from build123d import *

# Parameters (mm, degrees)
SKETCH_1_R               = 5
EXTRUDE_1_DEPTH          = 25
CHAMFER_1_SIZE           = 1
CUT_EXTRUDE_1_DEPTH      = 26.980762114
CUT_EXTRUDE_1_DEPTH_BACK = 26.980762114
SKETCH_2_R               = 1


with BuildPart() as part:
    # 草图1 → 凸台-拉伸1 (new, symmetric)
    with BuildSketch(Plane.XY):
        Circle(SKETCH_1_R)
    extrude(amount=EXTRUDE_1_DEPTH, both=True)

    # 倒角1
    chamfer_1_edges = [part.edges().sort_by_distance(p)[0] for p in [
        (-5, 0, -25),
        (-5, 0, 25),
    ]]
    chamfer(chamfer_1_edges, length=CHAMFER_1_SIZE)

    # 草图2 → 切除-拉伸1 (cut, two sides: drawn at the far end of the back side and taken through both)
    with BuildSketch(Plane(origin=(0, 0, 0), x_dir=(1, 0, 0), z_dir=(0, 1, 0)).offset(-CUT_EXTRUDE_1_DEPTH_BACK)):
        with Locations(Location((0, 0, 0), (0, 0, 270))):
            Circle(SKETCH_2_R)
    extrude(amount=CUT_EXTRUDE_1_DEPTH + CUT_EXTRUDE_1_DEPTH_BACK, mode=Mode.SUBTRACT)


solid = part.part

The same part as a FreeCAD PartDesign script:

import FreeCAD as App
import Part
import Sketcher


def edges_at(feature, points):
    """Names of the edges that pass closest to the given points."""
    edges = feature.Shape.Edges
    near = lambda p: min(range(len(edges)), key=lambda i: edges[i].distToShape(Part.Vertex(*p))[0])
    return sorted({f"Edge{near(p) + 1}" for p in points})

doc = App.newDocument("Part")
body = doc.addObject("PartDesign::Body", "Body")

# Sketch on XY plane
sketch1 = body.newObject("Sketcher::SketchObject", "Sketch")
sketch1.AttachmentSupport = (doc.getObject("XY_Plane"), [""])
sketch1.MapMode = "FlatFace"
sketch1.addGeometry(Part.Circle(App.Vector(0, 0, 0), App.Vector(0, 0, 1), 5), False)
sketch1.addConstraint(Sketcher.Constraint("Coincident", 0, 3, -1, 1))
sketch1.addConstraint(Sketcher.Constraint("Diameter", 0, 10.0))
pad1 = body.newObject("PartDesign::Pad", "Pad")
pad1.Profile = sketch1
pad1.Length = 50
pad1.Midplane = True
doc.recompute()

chamfer = body.newObject("PartDesign::Chamfer", "Chamfer")
chamfer.Base = (pad1, edges_at(pad1, [(-5, 0, -25), (-5, 0, 25)]))
chamfer.Size = 1

# Sketch on XZ plane
sketch2 = body.newObject("Sketcher::SketchObject", "Sketch001")
sketch2.AttachmentSupport = (doc.getObject("XZ_Plane"), [""])
sketch2.MapMode = "FlatFace"
sketch2.addGeometry(Part.Circle(App.Vector(0, 0, 0), App.Vector(0, 0, 1), 1), False)
sketch2.addConstraint(Sketcher.Constraint("Coincident", 0, 3, -1, 1))
sketch2.addConstraint(Sketcher.Constraint("Diameter", 0, 2.0))
pocket1 = body.newObject("PartDesign::Pocket", "Pocket")
pocket1.Profile = sketch2
pocket1.Type = "ThroughAll"
pocket1.Midplane = True

doc.recompute()
